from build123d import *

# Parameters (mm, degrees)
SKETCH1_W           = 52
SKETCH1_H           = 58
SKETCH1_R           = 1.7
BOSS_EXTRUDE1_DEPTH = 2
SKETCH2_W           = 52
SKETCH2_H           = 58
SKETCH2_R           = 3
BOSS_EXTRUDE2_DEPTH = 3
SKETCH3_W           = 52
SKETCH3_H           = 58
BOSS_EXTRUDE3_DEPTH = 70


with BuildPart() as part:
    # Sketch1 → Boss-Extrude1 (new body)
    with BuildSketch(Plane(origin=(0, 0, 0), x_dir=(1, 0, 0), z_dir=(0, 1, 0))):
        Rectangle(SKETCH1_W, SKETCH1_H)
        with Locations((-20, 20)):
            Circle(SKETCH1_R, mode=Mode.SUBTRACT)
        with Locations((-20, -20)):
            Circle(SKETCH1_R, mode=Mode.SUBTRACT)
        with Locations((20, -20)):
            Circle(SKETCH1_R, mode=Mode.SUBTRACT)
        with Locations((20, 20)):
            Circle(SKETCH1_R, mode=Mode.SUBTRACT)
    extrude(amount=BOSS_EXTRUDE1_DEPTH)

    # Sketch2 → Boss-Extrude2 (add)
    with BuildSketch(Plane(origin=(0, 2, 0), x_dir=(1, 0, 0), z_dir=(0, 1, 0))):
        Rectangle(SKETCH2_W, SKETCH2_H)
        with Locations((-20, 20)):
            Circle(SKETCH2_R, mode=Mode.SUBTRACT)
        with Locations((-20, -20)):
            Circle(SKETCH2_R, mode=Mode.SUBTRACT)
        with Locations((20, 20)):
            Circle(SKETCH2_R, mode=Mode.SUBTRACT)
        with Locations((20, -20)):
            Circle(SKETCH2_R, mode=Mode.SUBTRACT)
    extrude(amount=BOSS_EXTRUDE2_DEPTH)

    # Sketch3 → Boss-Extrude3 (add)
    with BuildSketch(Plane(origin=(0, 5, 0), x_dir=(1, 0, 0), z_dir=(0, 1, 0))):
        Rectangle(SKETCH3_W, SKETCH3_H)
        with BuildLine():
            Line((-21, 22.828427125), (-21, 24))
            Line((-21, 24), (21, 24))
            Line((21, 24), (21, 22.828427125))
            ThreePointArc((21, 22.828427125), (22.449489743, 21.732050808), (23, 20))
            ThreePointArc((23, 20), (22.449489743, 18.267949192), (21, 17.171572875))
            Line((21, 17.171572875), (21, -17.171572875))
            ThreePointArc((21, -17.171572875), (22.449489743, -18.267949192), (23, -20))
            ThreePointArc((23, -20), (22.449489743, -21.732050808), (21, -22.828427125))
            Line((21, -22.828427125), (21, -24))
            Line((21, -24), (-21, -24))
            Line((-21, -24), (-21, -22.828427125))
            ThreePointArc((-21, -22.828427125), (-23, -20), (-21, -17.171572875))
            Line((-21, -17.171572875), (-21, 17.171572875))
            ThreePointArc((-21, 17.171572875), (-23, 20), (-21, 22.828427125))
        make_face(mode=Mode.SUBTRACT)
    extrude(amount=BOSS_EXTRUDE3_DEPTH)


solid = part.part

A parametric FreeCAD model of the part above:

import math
import FreeCAD as App
import Part
import Sketcher

V = App.Vector

doc = App.newDocument("Part")
body = doc.addObject("PartDesign::Body", "Body")

sketch1 = body.newObject("Sketcher::SketchObject", "Sketch")
sketch1.AttachmentSupport = (doc.getObject("XZ_Plane"), [""])
sketch1.MapMode = "FlatFace"
sketch1.addGeometry([
    Part.LineSegment(V(-26, -29, 0), V(-26, 29, 0)),
    Part.LineSegment(V(-26, 29, 0), V(26, 29, 0)),
    Part.LineSegment(V(26, 29, 0), V(26, -29, 0)),
    Part.LineSegment(V(26, -29, 0), V(-26, -29, 0)),
    Part.Circle(V(-20, 20, 0), V(0, 0, 1), 1.7),
    Part.Circle(V(20, 20, 0), V(0, 0, 1), 1.7),
    Part.Circle(V(-20, -20, 0), V(0, 0, 1), 1.7),
    Part.Circle(V(20, -20, 0), V(0, 0, 1), 1.7),
], False)
sketch1.addConstraint([
    Sketcher.Constraint("Coincident", 0, 2, 1, 1),
    Sketcher.Constraint("Coincident", 1, 2, 2, 1),
    Sketcher.Constraint("Coincident", 2, 2, 3, 1),
    Sketcher.Constraint("Coincident", 3, 2, 0, 1),
    Sketcher.Constraint("Vertical", 0),
    Sketcher.Constraint("Horizontal", 1),
    Sketcher.Constraint("Vertical", 2),
    Sketcher.Constraint("Horizontal", 3),
    Sketcher.Constraint("Equal", 4, 5),
    Sketcher.Constraint("Equal", 5, 6),
    Sketcher.Constraint("Equal", 6, 7),
    Sketcher.Constraint("Symmetric", 5, 3, 6, 3, -1, 1),
    Sketcher.Constraint("Symmetric", 4, 3, 7, 3, -1, 1),
    Sketcher.Constraint("Symmetric", 0, 2, 2, 2, -1, 1),
    Sketcher.Constraint("Symmetric", 4, 3, 5, 3, -2),
    Sketcher.Constraint("Diameter", 4, 3.4),
    Sketcher.Constraint("DistanceX", 1, 1, 1, 2, 52.0),
    Sketcher.Constraint("DistanceY", 0, 1, 0, 2, 58.0),
    Sketcher.Constraint("DistanceX", 4, 3, -1, 1, 20.0),
    Sketcher.Constraint("DistanceY", -1, 1, 4, 3, 20.0),
])
pad1 = body.newObject("PartDesign::Pad", "Pad")
pad1.Profile = sketch1
pad1.Length = 2
pad1.Reversed = True

sketch2 = body.newObject("Sketcher::SketchObject", "Sketch001")
sketch2.AttachmentSupport = (doc.getObject("XZ_Plane"), [""])
sketch2.MapMode = "FlatFace"
sketch2.AttachmentOffset = App.Placement(V(0, 0, -2), App.Rotation())
sketch2.addGeometry([
    Part.LineSegment(V(-26, -29, 0), V(-26, 29, 0)),
    Part.LineSegment(V(-26, 29, 0), V(26, 29, 0)),
    Part.LineSegment(V(26, 29, 0), V(26, -29, 0)),
    Part.LineSegment(V(26, -29, 0), V(-26, -29, 0)),
    Part.Circle(V(-20, 20, 0), V(0, 0, 1), 3),
    Part.Circle(V(20, 20, 0), V(0, 0, 1), 3),
    Part.Circle(V(-20, -20, 0), V(0, 0, 1), 3),
    Part.Circle(V(20, -20, 0), V(0, 0, 1), 3),
], False)
sketch2.addConstraint([
    Sketcher.Constraint("Coincident", 0, 2, 1, 1),
    Sketcher.Constraint("Coincident", 1, 2, 2, 1),
    Sketcher.Constraint("Coincident", 2, 2, 3, 1),
    Sketcher.Constraint("Coincident", 3, 2, 0, 1),
    Sketcher.Constraint("Vertical", 0),
    Sketcher.Constraint("Horizontal", 1),
    Sketcher.Constraint("Vertical", 2),
    Sketcher.Constraint("Horizontal", 3),
    Sketcher.Constraint("Equal", 4, 5),
    Sketcher.Constraint("Equal", 5, 6),
    Sketcher.Constraint("Equal", 6, 7),
    Sketcher.Constraint("Symmetric", 5, 3, 6, 3, -1, 1),
    Sketcher.Constraint("Symmetric", 4, 3, 7, 3, -1, 1),
    Sketcher.Constraint("Symmetric", 0, 2, 2, 2, -1, 1),
    Sketcher.Constraint("Symmetric", 4, 3, 5, 3, -2),
    Sketcher.Constraint("Diameter", 4, 6.0),
    Sketcher.Constraint("DistanceX", 1, 1, 1, 2, 52.0),
    Sketcher.Constraint("DistanceY", 0, 1, 0, 2, 58.0),
    Sketcher.Constraint("DistanceX", 4, 3, -1, 1, 20.0),
    Sketcher.Constraint("DistanceY", -1, 1, 4, 3, 20.0),
])
pad2 = body.newObject("PartDesign::Pad", "Pad001")
pad2.Profile = sketch2
pad2.Length = 3
pad2.Reversed = True

sketch3 = body.newObject("Sketcher::SketchObject", "Sketch002")
sketch3.AttachmentSupport = (doc.getObject("XZ_Plane"), [""])
sketch3.MapMode = "FlatFace"
sketch3.AttachmentOffset = App.Placement(V(0, 0, -5), App.Rotation())
sketch3.addGeometry([
    Part.LineSegment(V(-26, -29, 0), V(-26, 29, 0)),
    Part.LineSegment(V(-26, 29, 0), V(26, 29, 0)),
    Part.LineSegment(V(26, 29, 0), V(26, -29, 0)),
    Part.LineSegment(V(26, -29, 0), V(-26, -29, 0)),
    Part.ArcOfCircle(Part.Circle(V(-20, -20, 0), V(0, 0, 1), 3), math.radians(109.471221), math.radians(250.528779)),
    Part.LineSegment(V(-21, -22.828427, 0), V(-21, -24, 0)),
    Part.LineSegment(V(-21, -24, 0), V(21, -24, 0)),
    Part.LineSegment(V(21, -24, 0), V(21, -22.828427, 0)),
    Part.ArcOfCircle(Part.Circle(V(20, -20, 0), V(0, 0, 1), 3), math.radians(-70.528779), math.radians(0)),
    Part.ArcOfCircle(Part.Circle(V(20, -20, 0), V(0, 0, 1), 3), math.radians(0), math.radians(70.528779)),
    Part.LineSegment(V(21, -17.171573, 0), V(21, 17.171573, 0)),
    Part.ArcOfCircle(Part.Circle(V(20, 20, 0), V(0, 0, 1), 3), math.radians(-70.528779), math.radians(0)),
    Part.ArcOfCircle(Part.Circle(V(20, 20, 0), V(0, 0, 1), 3), math.radians(0), math.radians(70.528779)),
    Part.LineSegment(V(21, 22.828427, 0), V(21, 24, 0)),
    Part.LineSegment(V(21, 24, 0), V(-21, 24, 0)),
    Part.LineSegment(V(-21, 24, 0), V(-21, 22.828427, 0)),
    Part.ArcOfCircle(Part.Circle(V(-20, 20, 0), V(0, 0, 1), 3), math.radians(109.471221), math.radians(250.528779)),
    Part.LineSegment(V(-21, 17.171573, 0), V(-21, -17.171573, 0)),
], False)
sketch3.addConstraint([
    Sketcher.Constraint("Coincident", 0, 2, 1, 1),
    Sketcher.Constraint("Coincident", 1, 2, 2, 1),
    Sketcher.Constraint("Coincident", 2, 2, 3, 1),
    Sketcher.Constraint("Coincident", 3, 2, 0, 1),
    Sketcher.Constraint("Coincident", 4, 2, 5, 1),
    Sketcher.Constraint("Coincident", 5, 2, 6, 1),
    Sketcher.Constraint("Coincident", 6, 2, 7, 1),
    Sketcher.Constraint("Coincident", 7, 2, 8, 1),
    Sketcher.Constraint("Tangent", 8, 2, 9, 1),
    Sketcher.Constraint("Coincident", 9, 2, 10, 1),
    Sketcher.Constraint("Coincident", 10, 2, 11, 1),
    Sketcher.Constraint("Tangent", 11, 2, 12, 1),
    Sketcher.Constraint("Coincident", 12, 2, 13, 1),
    Sketcher.Constraint("Coincident", 13, 2, 14, 1),
    Sketcher.Constraint("Coincident", 14, 2, 15, 1),
    Sketcher.Constraint("Coincident", 15, 2, 16, 1),
    Sketcher.Constraint("Coincident", 16, 2, 17, 1),
    Sketcher.Constraint("Coincident", 17, 2, 4, 1),
    Sketcher.Constraint("Vertical", 0),
    Sketcher.Constraint("Horizontal", 1),
    Sketcher.Constraint("Vertical", 2),
    Sketcher.Constraint("Horizontal", 3),
    Sketcher.Constraint("Vertical", 5),
    Sketcher.Constraint("Horizontal", 6),
    Sketcher.Constraint("Vertical", 7),
    Sketcher.Constraint("Vertical", 10),
    Sketcher.Constraint("Vertical", 13),
    Sketcher.Constraint("Horizontal", 14),
    Sketcher.Constraint("Vertical", 15),
    Sketcher.Constraint("Vertical", 17),
    Sketcher.Constraint("Equal", 4, 8),
    Sketcher.Constraint("Equal", 8, 9),
    Sketcher.Constraint("Equal", 9, 11),
    Sketcher.Constraint("Equal", 11, 12),
    Sketcher.Constraint("Equal", 12, 16),
    Sketcher.Constraint("Symmetric", 4, 3, 11, 3, -1, 1),
    Sketcher.Constraint("Symmetric", 8, 3, 16, 3, -1, 1),
    Sketcher.Constraint("Symmetric", 0, 2, 2, 2, -1, 1),
    Sketcher.Constraint("Symmetric", 5, 2, 13, 2, -1, 1),
    Sketcher.Constraint("Symmetric", 4, 3, 8, 3, -2),
    Sketcher.Constraint("Horizontal", 4, 2, 7, 2),
    Sketcher.Constraint("Horizontal", 9, 3, 8, 2),
    Sketcher.Constraint("Horizontal", 16, 3, 11, 2),
    Sketcher.Constraint("Horizontal", 12, 2, 15, 2),
    Sketcher.Constraint("Horizontal", 10, 2, 16, 2),
    Sketcher.Constraint("Vertical", 7, 2, 9, 2),
    Sketcher.Constraint("Radius", 4, 3.0),
    Sketcher.Constraint("DistanceX", 1, 1, 1, 2, 52.0),
    Sketcher.Constraint("DistanceX", 6, 1, 6, 2, 42.0),
    Sketcher.Constraint("DistanceY", 0, 1, 0, 2, 58.0),
    Sketcher.Constraint("DistanceX", 4, 3, -1, 1, 20.0),
    Sketcher.Constraint("DistanceY", 4, 3, -1, 1, 20.0),
    Sketcher.Constraint("DistanceY", 5, 2, -1, 1, 24.0),
])
pad3 = body.newObject("PartDesign::Pad", "Pad002")
pad3.Profile = sketch3
pad3.Length = 70
pad3.Reversed = True

doc.recompute()
